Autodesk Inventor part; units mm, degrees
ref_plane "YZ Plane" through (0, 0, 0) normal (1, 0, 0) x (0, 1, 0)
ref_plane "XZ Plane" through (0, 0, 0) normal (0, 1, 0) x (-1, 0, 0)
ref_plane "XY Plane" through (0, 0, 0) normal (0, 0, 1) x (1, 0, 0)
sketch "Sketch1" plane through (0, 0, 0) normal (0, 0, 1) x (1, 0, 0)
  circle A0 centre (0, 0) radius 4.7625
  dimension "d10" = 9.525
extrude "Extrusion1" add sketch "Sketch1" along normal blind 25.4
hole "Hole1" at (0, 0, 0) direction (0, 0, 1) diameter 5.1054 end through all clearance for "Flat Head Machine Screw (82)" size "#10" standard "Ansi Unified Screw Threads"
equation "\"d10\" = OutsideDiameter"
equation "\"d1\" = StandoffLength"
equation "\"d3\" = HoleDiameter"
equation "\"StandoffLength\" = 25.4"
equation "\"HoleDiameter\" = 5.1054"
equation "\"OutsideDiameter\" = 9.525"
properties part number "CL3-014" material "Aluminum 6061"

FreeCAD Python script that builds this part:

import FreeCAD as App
import Part
import Sketcher

V = App.Vector
Q = App.Units.Quantity

doc = App.newDocument("Part")
params = doc.addObject("Spreadsheet::Sheet", "Params")
for row, (alias, value) in enumerate([
    ("sketch1_diameter", "0.375 in"),
    ("pad1_length", "1 in"),
    ("sketch2_diameter", "0.201 in"),
    ("hole_diameter", "0.201 in"),
], start=1):
    params.set(f"A{row}", alias)
    params.set(f"B{row}", "=" + value)
    params.setAlias(f"B{row}", alias)

body = doc.addObject("PartDesign::Body", "Body")

# Sketch on XY plane
sketch1 = body.newObject("Sketcher::SketchObject", "Sketch")
sketch1.AttachmentSupport = (doc.getObject("XY_Plane"), [""])
sketch1.MapMode = "FlatFace"
sketch1.addGeometry(Part.Circle(V(0, 0, 0), V(0, 0, 1), 4.8), False)
sketch1.addConstraint([
    Sketcher.Constraint("Coincident", 0, 3, -1, 1),
    Sketcher.Constraint("Diameter", 0, Q("0.375 in")),
])
sketch1.setExpression("Constraints[1]", "Params.sketch1_diameter")
pad1 = body.newObject("PartDesign::Pad", "Pad")
pad1.Profile = sketch1
pad1.setExpression("Length", "Params.pad1_length")

# Sketch on XY plane
sketch2 = body.newObject("Sketcher::SketchObject", "Sketch001")
sketch2.AttachmentSupport = (doc.getObject("XY_Plane"), [""])
sketch2.MapMode = "FlatFace"
sketch2.addGeometry(Part.Circle(V(0, 0, 0), V(0, 0, 1), 2.6), False)
sketch2.addConstraint([
    Sketcher.Constraint("Coincident", 0, 3, -1, 1),
    Sketcher.Constraint("Diameter", 0, Q("0.201 in")),
])
sketch2.setExpression("Constraints[1]", "Params.sketch2_diameter")
doc.recompute()
hole = body.newObject("PartDesign::Hole", "Hole")
hole.Profile = sketch2
hole.ThreadType = "None"
hole.setExpression("Diameter", "Params.hole_diameter")
hole.DepthType = "ThroughAll"
hole.Reversed = True

doc.recompute()
